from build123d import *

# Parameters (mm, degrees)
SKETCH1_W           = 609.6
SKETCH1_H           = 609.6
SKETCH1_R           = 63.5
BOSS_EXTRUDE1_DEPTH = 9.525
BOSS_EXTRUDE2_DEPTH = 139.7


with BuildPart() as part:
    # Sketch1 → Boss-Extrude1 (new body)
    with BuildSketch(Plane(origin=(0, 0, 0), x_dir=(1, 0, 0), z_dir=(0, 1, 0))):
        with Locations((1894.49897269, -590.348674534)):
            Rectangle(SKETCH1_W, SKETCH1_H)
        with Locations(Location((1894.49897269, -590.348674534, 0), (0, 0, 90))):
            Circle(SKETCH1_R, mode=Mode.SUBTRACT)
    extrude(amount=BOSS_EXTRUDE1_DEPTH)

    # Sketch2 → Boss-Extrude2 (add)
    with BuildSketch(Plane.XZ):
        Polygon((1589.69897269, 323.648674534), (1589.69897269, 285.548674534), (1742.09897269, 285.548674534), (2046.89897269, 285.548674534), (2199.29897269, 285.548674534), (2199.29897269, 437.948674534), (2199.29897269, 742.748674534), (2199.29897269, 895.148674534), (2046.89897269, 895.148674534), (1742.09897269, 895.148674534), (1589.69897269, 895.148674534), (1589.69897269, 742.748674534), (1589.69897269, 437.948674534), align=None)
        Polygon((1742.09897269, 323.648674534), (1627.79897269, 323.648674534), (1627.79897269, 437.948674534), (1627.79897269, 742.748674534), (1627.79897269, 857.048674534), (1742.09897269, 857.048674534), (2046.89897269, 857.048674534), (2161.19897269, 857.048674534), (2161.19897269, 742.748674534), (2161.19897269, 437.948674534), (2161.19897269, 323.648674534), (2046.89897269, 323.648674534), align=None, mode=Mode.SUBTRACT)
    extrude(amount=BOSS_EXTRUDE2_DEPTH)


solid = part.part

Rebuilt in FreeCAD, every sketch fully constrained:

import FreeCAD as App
import Part
import Sketcher
from FreeCAD import Vector
Q = App.Units.Quantity

doc = App.newDocument("Part")
body = doc.addObject("PartDesign::Body", "Body")

# Sketch on XZ plane
sketch1 = body.newObject("Sketcher::SketchObject", "Sketch")
sketch1.AttachmentSupport = (doc.getObject("XZ_Plane"), [""])
sketch1.MapMode = "FlatFace"
sketch1.addGeometry([
    Part.LineSegment(Vector(1589.698973, 285.548675, 0), Vector(1589.698973, 895.148675, 0)),  # 0
    Part.LineSegment(Vector(1589.698973, 895.148675, 0), Vector(2199.298973, 895.148675, 0)),  # 1
    Part.LineSegment(Vector(2199.298973, 895.148675, 0), Vector(2199.298973, 285.548675, 0)),  # 2
    Part.LineSegment(Vector(2199.298973, 285.548675, 0), Vector(1589.698973, 285.548675, 0)),  # 3
    Part.Circle(Vector(1894.498973, 590.348675, 0), Vector(0, 0, 1), 63.5),  # 4
], False)
sketch1.addConstraint([
    Sketcher.Constraint("Coincident", 0, 2, 1, 1),
    Sketcher.Constraint("Coincident", 1, 2, 2, 1),
    Sketcher.Constraint("Coincident", 2, 2, 3, 1),
    Sketcher.Constraint("Coincident", 3, 2, 0, 1),
    Sketcher.Constraint("Vertical", 0),
    Sketcher.Constraint("Horizontal", 1),
    Sketcher.Constraint("Vertical", 2),
    Sketcher.Constraint("Horizontal", 3),
    Sketcher.Constraint("Equal", 3, 0),
    Sketcher.Constraint("Diameter", 4, Q("5 in")),
    Sketcher.Constraint("DistanceX", 1, 1, 1, 2, Q("24 in")),
    Sketcher.Constraint("DistanceX", 0, 2, 4, 3, Q("12 in")),
    Sketcher.Constraint("DistanceY", 4, 3, 0, 2, Q("12 in")),
    Sketcher.Constraint("DistanceX", -1, 1, 4, 3, 1894.498973),
    Sketcher.Constraint("DistanceY", -1, 1, 4, 3, 590.348675),
])
pad1 = body.newObject("PartDesign::Pad", "Pad")
pad1.Profile = sketch1
pad1.Length = Q("0.375 in")
pad1.Reversed = True

# Sketch on XZ plane
sketch2 = body.newObject("Sketcher::SketchObject", "Sketch001")
sketch2.AttachmentSupport = (doc.getObject("XZ_Plane"), [""])
sketch2.MapMode = "FlatFace"
sketch2.addGeometry([
    Part.LineSegment(Vector(1589.698973, 285.548675, 0), Vector(2199.298973, 285.548675, 0)),  # 0
    Part.LineSegment(Vector(2199.298973, 285.548675, 0), Vector(2199.298973, 895.148675, 0)),  # 1
    Part.LineSegment(Vector(2199.298973, 895.148675, 0), Vector(1589.698973, 895.148675, 0)),  # 2
    Part.LineSegment(Vector(1589.698973, 895.148675, 0), Vector(1589.698973, 285.548675, 0)),  # 3
    Part.LineSegment(Vector(2161.198973, 323.648675, 0), Vector(1627.798973, 323.648675, 0)),  # 4
    Part.LineSegment(Vector(1627.798973, 323.648675, 0), Vector(1627.798973, 857.048675, 0)),  # 5
    Part.LineSegment(Vector(1627.798973, 857.048675, 0), Vector(2161.198973, 857.048675, 0)),  # 6
    Part.LineSegment(Vector(2161.198973, 857.048675, 0), Vector(2161.198973, 323.648675, 0)),  # 7
], False)
sketch2.addConstraint([
    Sketcher.Constraint("Coincident", 0, 2, 1, 1),
    Sketcher.Constraint("Coincident", 1, 2, 2, 1),
    Sketcher.Constraint("Coincident", 2, 2, 3, 1),
    Sketcher.Constraint("Coincident", 3, 2, 0, 1),
    Sketcher.Constraint("Coincident", 4, 2, 5, 1),
    Sketcher.Constraint("Coincident", 5, 2, 6, 1),
    Sketcher.Constraint("Coincident", 6, 2, 7, 1),
    Sketcher.Constraint("Coincident", 7, 2, 4, 1),
    Sketcher.Constraint("Horizontal", 0),
    Sketcher.Constraint("Vertical", 1),
    Sketcher.Constraint("Horizontal", 2),
    Sketcher.Constraint("Vertical", 3),
    Sketcher.Constraint("Horizontal", 4),
    Sketcher.Constraint("Vertical", 5),
    Sketcher.Constraint("Horizontal", 6),
    Sketcher.Constraint("Vertical", 7),
    Sketcher.Constraint("Equal", 2, 1),
    Sketcher.Constraint("Equal", 6, 5),
    Sketcher.Constraint("DistanceX", 0, 1, 0, 2, Q("24 in")),
    Sketcher.Constraint("DistanceX", 4, 2, 4, 1, Q("21 in")),
    Sketcher.Constraint("DistanceX", 3, 2, 4, 2, Q("1.5 in")),
    Sketcher.Constraint("DistanceY", 3, 2, 4, 2, Q("1.5 in")),
    Sketcher.Constraint("DistanceX", -1, 1, 0, 2, 2199.298973),
    Sketcher.Constraint("DistanceY", -1, 1, 0, 2, 285.548675),
])
pad2 = body.newObject("PartDesign::Pad", "Pad001")
pad2.Profile = sketch2
pad2.Length = Q("5.5 in")

doc.recompute()
